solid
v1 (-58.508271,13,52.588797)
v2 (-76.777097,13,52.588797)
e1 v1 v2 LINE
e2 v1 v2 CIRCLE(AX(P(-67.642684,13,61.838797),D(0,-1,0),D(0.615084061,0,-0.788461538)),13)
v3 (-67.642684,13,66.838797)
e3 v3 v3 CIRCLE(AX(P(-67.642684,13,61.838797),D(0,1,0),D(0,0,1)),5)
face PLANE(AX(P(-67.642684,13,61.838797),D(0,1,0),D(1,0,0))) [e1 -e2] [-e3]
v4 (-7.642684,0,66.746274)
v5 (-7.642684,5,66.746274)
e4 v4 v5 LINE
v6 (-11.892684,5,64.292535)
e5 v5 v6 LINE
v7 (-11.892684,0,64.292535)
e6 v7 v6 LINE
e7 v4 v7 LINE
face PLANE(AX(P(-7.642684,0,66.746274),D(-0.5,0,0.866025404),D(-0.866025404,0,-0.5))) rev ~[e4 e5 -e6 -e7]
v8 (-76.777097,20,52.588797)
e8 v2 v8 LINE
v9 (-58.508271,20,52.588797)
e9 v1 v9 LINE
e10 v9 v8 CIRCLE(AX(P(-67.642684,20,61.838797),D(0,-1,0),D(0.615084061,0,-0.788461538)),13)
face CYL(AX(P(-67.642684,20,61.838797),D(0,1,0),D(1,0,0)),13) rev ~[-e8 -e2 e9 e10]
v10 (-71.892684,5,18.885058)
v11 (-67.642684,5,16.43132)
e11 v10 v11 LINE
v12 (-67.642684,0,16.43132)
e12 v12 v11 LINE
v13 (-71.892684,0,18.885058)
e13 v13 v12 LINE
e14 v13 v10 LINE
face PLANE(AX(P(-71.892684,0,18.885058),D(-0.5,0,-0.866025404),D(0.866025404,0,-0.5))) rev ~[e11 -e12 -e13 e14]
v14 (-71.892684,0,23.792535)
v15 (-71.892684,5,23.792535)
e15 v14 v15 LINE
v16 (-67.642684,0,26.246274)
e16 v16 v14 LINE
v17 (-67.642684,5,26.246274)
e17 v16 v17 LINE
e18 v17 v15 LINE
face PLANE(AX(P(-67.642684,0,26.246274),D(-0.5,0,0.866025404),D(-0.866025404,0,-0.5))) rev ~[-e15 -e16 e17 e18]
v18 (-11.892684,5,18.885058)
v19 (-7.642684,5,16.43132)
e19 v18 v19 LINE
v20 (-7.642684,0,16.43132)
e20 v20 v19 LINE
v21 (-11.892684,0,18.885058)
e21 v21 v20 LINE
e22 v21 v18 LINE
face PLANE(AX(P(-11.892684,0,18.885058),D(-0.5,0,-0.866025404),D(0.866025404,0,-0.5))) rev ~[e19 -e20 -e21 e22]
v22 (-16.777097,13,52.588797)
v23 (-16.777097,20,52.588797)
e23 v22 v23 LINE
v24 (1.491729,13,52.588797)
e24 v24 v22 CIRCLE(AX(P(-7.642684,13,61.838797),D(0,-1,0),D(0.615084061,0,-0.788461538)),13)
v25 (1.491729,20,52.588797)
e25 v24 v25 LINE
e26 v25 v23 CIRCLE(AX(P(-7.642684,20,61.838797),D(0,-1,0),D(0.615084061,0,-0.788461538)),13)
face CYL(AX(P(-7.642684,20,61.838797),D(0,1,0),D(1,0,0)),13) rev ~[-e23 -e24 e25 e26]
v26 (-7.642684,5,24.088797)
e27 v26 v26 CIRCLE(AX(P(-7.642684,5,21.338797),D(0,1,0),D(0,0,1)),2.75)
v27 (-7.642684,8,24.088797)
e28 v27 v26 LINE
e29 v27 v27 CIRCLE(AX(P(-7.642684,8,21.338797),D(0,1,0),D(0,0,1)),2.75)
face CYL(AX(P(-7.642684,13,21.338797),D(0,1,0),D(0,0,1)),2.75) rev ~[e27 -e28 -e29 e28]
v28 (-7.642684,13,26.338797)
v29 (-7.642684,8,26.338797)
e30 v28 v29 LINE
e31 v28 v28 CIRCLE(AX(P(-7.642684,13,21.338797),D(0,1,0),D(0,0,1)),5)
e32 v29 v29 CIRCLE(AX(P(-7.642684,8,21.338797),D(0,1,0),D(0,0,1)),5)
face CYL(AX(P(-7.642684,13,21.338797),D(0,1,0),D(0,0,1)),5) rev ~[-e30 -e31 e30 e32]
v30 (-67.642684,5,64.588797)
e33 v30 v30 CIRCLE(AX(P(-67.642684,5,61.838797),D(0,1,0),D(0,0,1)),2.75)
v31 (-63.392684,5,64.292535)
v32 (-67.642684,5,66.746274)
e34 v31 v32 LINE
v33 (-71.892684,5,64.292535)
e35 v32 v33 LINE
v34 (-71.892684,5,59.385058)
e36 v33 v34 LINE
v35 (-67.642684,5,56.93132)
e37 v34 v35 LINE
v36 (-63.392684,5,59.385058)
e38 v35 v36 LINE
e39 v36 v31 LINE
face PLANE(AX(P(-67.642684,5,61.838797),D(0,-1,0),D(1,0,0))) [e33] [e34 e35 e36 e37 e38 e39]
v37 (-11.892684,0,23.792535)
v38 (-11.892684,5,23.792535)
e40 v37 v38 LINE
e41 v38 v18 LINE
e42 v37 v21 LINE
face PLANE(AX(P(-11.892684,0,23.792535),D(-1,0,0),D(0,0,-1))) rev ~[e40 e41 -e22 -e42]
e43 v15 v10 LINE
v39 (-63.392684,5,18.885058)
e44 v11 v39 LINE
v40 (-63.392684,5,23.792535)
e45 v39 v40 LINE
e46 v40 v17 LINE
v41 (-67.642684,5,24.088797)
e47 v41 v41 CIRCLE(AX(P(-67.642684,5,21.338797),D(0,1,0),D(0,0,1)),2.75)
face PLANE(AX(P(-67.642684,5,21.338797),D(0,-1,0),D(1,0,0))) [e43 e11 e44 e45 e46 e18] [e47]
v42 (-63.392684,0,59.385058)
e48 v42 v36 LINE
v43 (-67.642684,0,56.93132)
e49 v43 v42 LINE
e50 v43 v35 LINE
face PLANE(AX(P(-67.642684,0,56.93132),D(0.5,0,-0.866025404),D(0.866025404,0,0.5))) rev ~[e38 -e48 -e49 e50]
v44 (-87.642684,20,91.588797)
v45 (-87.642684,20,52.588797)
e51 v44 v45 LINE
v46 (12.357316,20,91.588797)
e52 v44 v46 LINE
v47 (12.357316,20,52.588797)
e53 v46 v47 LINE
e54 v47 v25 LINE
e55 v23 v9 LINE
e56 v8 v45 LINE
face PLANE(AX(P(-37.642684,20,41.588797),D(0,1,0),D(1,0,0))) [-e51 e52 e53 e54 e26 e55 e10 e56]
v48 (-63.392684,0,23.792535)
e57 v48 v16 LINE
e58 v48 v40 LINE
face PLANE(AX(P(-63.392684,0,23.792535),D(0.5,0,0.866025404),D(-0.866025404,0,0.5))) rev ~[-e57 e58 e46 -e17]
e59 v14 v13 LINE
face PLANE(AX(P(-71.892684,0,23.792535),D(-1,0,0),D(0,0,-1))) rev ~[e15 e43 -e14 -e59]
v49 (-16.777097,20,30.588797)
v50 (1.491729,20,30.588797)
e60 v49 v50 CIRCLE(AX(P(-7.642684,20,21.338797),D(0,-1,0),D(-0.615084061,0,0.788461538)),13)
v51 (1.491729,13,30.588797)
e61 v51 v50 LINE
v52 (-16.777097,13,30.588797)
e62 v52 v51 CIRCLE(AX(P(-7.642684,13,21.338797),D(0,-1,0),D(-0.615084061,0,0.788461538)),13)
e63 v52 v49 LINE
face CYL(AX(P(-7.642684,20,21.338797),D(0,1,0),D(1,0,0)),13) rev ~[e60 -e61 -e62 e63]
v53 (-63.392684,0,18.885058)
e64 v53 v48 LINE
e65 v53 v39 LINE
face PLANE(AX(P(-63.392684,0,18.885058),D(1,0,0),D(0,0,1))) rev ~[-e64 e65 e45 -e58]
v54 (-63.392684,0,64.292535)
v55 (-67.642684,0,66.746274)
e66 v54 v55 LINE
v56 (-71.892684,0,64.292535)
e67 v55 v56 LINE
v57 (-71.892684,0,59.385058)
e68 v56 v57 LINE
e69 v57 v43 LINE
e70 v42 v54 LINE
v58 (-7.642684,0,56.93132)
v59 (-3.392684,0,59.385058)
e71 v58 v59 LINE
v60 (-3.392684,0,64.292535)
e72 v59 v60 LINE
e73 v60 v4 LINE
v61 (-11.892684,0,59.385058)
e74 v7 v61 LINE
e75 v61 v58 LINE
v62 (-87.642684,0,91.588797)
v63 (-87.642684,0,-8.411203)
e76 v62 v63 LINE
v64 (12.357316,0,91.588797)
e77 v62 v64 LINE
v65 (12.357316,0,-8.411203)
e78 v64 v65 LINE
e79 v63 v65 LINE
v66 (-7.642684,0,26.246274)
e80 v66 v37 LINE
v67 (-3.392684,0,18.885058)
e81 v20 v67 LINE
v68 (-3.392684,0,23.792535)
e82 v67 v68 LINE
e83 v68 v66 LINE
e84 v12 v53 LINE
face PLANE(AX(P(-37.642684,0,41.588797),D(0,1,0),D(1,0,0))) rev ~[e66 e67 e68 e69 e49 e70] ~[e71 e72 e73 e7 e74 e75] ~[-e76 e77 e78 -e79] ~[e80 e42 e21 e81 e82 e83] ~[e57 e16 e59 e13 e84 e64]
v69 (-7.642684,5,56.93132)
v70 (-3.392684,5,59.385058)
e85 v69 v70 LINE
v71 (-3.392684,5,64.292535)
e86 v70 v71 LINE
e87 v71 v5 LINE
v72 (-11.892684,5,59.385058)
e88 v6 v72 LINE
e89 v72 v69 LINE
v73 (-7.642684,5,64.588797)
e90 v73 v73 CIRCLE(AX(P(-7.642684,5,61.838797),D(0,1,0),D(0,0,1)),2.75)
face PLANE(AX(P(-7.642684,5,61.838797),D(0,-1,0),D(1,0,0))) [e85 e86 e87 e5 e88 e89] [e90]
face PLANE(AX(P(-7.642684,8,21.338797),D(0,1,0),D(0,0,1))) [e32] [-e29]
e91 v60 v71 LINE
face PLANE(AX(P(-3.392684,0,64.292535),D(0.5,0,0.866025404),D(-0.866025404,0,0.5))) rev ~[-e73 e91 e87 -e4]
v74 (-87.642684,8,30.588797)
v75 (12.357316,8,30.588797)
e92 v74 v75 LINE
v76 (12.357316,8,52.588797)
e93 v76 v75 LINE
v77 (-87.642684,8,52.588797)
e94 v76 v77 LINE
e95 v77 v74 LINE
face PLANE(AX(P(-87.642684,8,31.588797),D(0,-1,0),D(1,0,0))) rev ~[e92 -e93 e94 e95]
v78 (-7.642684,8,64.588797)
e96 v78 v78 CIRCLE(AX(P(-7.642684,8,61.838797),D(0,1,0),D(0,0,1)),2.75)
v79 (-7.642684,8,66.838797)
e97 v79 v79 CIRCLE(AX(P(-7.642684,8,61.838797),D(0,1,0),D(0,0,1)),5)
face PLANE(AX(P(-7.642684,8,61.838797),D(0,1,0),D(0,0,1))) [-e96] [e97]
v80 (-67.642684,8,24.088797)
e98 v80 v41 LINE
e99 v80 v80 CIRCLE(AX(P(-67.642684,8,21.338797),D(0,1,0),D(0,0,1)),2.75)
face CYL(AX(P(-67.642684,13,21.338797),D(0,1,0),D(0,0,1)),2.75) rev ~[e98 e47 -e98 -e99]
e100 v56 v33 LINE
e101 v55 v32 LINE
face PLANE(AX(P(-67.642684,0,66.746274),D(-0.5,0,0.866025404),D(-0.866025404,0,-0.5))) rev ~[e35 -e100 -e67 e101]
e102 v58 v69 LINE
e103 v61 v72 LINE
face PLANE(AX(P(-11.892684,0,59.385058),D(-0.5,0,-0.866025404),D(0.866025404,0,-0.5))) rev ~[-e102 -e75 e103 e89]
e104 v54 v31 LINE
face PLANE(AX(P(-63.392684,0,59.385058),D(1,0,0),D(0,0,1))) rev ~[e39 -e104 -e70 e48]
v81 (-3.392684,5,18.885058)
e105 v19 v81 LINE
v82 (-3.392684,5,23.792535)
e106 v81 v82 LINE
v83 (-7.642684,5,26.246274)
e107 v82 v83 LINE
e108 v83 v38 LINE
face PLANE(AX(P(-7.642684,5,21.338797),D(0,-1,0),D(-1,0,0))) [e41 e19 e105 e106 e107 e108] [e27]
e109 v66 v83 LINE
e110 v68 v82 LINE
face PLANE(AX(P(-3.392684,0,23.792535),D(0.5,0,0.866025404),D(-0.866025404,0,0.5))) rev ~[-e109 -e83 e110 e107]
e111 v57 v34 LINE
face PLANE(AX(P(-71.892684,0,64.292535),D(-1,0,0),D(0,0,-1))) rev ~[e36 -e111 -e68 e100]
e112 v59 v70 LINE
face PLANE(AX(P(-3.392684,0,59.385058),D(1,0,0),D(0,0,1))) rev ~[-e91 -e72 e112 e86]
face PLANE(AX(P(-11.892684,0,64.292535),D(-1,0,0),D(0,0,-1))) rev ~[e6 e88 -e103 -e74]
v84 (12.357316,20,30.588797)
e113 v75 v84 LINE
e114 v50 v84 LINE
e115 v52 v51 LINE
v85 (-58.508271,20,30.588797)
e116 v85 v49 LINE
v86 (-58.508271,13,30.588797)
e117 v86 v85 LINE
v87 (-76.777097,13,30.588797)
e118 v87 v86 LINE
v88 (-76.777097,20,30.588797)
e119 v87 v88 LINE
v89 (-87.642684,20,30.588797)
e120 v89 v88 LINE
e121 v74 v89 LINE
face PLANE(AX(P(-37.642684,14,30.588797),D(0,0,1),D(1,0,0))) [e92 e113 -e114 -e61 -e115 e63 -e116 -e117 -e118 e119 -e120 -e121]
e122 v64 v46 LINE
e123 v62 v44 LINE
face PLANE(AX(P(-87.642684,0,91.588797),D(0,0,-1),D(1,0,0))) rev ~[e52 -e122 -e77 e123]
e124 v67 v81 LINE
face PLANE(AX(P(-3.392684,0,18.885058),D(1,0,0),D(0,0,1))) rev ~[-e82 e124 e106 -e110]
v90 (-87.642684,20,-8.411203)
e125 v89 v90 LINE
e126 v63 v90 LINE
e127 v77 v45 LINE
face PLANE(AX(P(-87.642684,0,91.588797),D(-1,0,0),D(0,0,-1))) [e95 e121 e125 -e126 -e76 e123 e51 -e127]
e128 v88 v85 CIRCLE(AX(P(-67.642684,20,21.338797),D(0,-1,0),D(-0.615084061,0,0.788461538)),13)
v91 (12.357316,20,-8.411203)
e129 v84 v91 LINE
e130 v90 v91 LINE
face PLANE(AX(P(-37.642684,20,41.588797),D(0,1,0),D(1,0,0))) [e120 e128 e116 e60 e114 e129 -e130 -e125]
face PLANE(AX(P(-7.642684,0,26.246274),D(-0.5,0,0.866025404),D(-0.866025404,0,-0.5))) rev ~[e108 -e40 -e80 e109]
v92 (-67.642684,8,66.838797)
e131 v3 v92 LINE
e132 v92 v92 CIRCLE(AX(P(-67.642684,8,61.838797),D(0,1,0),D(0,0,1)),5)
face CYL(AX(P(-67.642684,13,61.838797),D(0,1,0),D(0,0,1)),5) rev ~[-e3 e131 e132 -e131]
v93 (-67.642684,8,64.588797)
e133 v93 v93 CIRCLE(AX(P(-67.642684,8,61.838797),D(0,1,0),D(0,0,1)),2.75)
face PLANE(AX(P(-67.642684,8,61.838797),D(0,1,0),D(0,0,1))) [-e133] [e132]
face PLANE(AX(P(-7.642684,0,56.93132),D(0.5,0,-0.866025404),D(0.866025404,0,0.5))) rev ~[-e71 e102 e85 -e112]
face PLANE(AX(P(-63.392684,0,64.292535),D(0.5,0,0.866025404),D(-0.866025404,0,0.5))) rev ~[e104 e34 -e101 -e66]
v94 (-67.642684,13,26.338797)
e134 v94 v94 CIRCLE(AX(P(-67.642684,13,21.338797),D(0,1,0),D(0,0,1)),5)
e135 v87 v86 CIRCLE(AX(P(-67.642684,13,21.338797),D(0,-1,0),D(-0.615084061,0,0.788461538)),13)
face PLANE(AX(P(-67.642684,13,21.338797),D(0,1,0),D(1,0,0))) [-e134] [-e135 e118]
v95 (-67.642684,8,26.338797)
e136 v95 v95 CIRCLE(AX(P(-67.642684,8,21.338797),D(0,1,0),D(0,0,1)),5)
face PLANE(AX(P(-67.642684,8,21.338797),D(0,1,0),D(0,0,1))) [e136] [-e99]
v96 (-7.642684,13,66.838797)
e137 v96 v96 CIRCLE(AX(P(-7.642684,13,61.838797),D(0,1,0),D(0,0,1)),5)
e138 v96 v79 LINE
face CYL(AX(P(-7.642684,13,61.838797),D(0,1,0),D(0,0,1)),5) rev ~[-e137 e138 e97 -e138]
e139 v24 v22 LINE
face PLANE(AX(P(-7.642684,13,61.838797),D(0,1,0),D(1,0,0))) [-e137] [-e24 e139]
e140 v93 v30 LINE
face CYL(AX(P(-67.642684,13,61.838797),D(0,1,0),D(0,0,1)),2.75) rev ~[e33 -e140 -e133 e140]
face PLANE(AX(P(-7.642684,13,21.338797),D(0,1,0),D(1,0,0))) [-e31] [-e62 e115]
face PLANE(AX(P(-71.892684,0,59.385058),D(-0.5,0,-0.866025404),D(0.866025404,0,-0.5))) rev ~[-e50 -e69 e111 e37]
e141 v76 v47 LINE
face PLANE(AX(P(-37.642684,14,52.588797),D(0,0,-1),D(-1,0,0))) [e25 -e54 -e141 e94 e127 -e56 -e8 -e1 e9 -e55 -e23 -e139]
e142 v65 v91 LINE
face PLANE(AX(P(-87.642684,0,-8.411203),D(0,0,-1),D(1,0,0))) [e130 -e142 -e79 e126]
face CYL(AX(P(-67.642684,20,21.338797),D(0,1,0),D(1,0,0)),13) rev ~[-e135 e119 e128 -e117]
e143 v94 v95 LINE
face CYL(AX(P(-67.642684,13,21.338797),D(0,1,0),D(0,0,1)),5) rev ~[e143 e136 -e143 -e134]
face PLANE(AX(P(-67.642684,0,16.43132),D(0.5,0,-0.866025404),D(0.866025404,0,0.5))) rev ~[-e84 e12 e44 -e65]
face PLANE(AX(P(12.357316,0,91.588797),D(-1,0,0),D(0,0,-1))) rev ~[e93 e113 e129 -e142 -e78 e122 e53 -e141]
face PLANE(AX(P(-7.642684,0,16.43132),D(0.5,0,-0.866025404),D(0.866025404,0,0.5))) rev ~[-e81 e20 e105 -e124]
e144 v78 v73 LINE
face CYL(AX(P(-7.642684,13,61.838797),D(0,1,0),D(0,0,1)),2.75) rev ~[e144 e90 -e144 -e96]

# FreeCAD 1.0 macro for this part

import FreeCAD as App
import Part
import Sketcher

V = App.Vector
Q = App.Units.Quantity

doc = App.newDocument("Part")
body = doc.addObject("PartDesign::Body", "Body")

# Sketch on XZ plane
sketch1 = body.newObject("Sketcher::SketchObject", "Sketch")
sketch1.AttachmentSupport = (doc.getObject("XZ_Plane"), [""])
sketch1.MapMode = "FlatFace"
sketch1.addGeometry([
    Part.LineSegment(V(-87.642684, -8.411203, 0), V(-87.642684, 91.588797, 0)),
    Part.LineSegment(V(-87.642684, 91.588797, 0), V(12.357316, 91.588797, 0)),
    Part.LineSegment(V(12.357316, 91.588797, 0), V(12.357316, -8.411203, 0)),
    Part.LineSegment(V(12.357316, -8.411203, 0), V(-87.642684, -8.411203, 0)),
], False)
sketch1.addConstraint([
    Sketcher.Constraint("Coincident", 0, 2, 1, 1),
    Sketcher.Constraint("Coincident", 1, 2, 2, 1),
    Sketcher.Constraint("Coincident", 2, 2, 3, 1),
    Sketcher.Constraint("Coincident", 3, 2, 0, 1),
    Sketcher.Constraint("Vertical", 0),
    Sketcher.Constraint("Horizontal", 1),
    Sketcher.Constraint("Vertical", 2),
    Sketcher.Constraint("Horizontal", 3),
    Sketcher.Constraint("Equal", 3, 0),
    Sketcher.Constraint("DistanceX", 1, 1, 1, 2, Q("100 mm")),
    Sketcher.Constraint("DistanceX", 0, 2, -1, 1, Q("87.642684 mm")),
    Sketcher.Constraint("DistanceY", -1, 1, 0, 2, Q("91.588797 mm")),
])
pad1 = body.newObject("PartDesign::Pad", "Pad")
pad1.Profile = sketch1
pad1.Length = 20
pad1.Reversed = True

# Sketch on XZ plane
sketch2 = body.newObject("Sketcher::SketchObject", "Sketch001")
sketch2.AttachmentSupport = (doc.getObject("XZ_Plane"), [""])
sketch2.MapMode = "FlatFace"
sketch2.AttachmentOffset = App.Placement(V(0, 0, -20), App.Rotation())
sketch2.addGeometry([
    Part.LineSegment(V(-87.642684, 31.588797, 0), V(-87.642684, 51.588797, 0)),
    Part.LineSegment(V(-87.642684, 51.588797, 0), V(12.357316, 51.588797, 0)),
    Part.LineSegment(V(12.357316, 51.588797, 0), V(12.357316, 31.588797, 0)),
    Part.LineSegment(V(12.357316, 31.588797, 0), V(-87.642684, 31.588797, 0)),
], False)
sketch2.addConstraint([
    Sketcher.Constraint("Coincident", 0, 2, 1, 1),
    Sketcher.Constraint("Coincident", 1, 2, 2, 1),
    Sketcher.Constraint("Coincident", 2, 2, 3, 1),
    Sketcher.Constraint("Coincident", 3, 2, 0, 1),
    Sketcher.Constraint("Vertical", 0),
    Sketcher.Constraint("Horizontal", 1),
    Sketcher.Constraint("Vertical", 2),
    Sketcher.Constraint("Horizontal", 3),
    Sketcher.Constraint("DistanceX", 1, 1, 1, 2, Q("100 mm")),
    Sketcher.Constraint("DistanceY", 0, 1, 0, 2, Q("20 mm")),
    Sketcher.Constraint("DistanceX", 0, 2, -1, 1, Q("87.642684 mm")),
    Sketcher.Constraint("DistanceY", -1, 1, 0, 2, Q("51.588797 mm")),
])
pocket1 = body.newObject("PartDesign::Pocket", "Pocket")
pocket1.Profile = sketch2
pocket1.Length = 12
pocket1.Reversed = True

# Sketch on XZ plane
sketch3 = body.newObject("Sketcher::SketchObject", "Sketch002")
sketch3.AttachmentSupport = (doc.getObject("XZ_Plane"), [""])
sketch3.MapMode = "FlatFace"
sketch3.AttachmentOffset = App.Placement(V(0, 0, -20), App.Rotation())
sketch3.addGeometry(Part.Circle(V(-7.642684, 61.838797, 0), V(0, 0, 1), 13), False)
sketch3.addConstraint([
    Sketcher.Constraint("Diameter", 0, Q("26 mm")),
    Sketcher.Constraint("DistanceX", 0, 3, -1, 1, Q("7.642684 mm")),
    Sketcher.Constraint("DistanceY", -1, 1, 0, 3, Q("61.838797 mm")),
])
pocket2 = body.newObject("PartDesign::Pocket", "Pocket001")
pocket2.Profile = sketch3
pocket2.Length = 7
pocket2.Reversed = True

# Sketch on XZ plane
sketch4 = body.newObject("Sketcher::SketchObject", "Sketch003")
sketch4.AttachmentSupport = (doc.getObject("XZ_Plane"), [""])
sketch4.MapMode = "FlatFace"
sketch4.AttachmentOffset = App.Placement(V(0, 0, -20), App.Rotation())
sketch4.addGeometry(Part.Circle(V(-67.642684, 61.838797, 0), V(0, 0, 1), 13), False)
sketch4.addConstraint([
    Sketcher.Constraint("Diameter", 0, Q("26 mm")),
    Sketcher.Constraint("DistanceX", 0, 3, -1, 1, Q("67.642684 mm")),
    Sketcher.Constraint("DistanceY", -1, 1, 0, 3, Q("61.838797 mm")),
])
pocket3 = body.newObject("PartDesign::Pocket", "Pocket002")
pocket3.Profile = sketch4
pocket3.Length = 7
pocket3.Reversed = True

# Sketch on XZ plane
sketch5 = body.newObject("Sketcher::SketchObject", "Sketch004")
sketch5.AttachmentSupport = (doc.getObject("XZ_Plane"), [""])
sketch5.MapMode = "FlatFace"
sketch5.AttachmentOffset = App.Placement(V(0, 0, -20), App.Rotation())
sketch5.addGeometry(Part.Circle(V(-7.642684, 21.338797, 0), V(0, 0, 1), 13), False)
sketch5.addConstraint([
    Sketcher.Constraint("Diameter", 0, Q("26 mm")),
    Sketcher.Constraint("DistanceX", 0, 3, -1, 1, Q("7.642684 mm")),
    Sketcher.Constraint("DistanceY", -1, 1, 0, 3, Q("21.338797 mm")),
])
pocket4 = body.newObject("PartDesign::Pocket", "Pocket003")
pocket4.Profile = sketch5
pocket4.Length = 7
pocket4.Reversed = True

# Sketch on XZ plane
sketch6 = body.newObject("Sketcher::SketchObject", "Sketch005")
sketch6.AttachmentSupport = (doc.getObject("XZ_Plane"), [""])
sketch6.MapMode = "FlatFace"
sketch6.AttachmentOffset = App.Placement(V(0, 0, -20), App.Rotation())
sketch6.addGeometry(Part.Circle(V(-67.642684, 21.338797, 0), V(0, 0, 1), 13), False)
sketch6.addConstraint([
    Sketcher.Constraint("Diameter", 0, Q("26 mm")),
    Sketcher.Constraint("DistanceX", 0, 3, -1, 1, Q("67.642684 mm")),
    Sketcher.Constraint("DistanceY", -1, 1, 0, 3, Q("21.338797 mm")),
])
pocket5 = body.newObject("PartDesign::Pocket", "Pocket004")
pocket5.Profile = sketch6
pocket5.Length = 7
pocket5.Reversed = True

# Sketch on XZ plane
sketch7 = body.newObject("Sketcher::SketchObject", "Sketch006")
sketch7.AttachmentSupport = (doc.getObject("XZ_Plane"), [""])
sketch7.MapMode = "FlatFace"
sketch7.AttachmentOffset = App.Placement(V(0, 0, -13), App.Rotation())
sketch7.addGeometry(Part.Circle(V(-67.642684, 21.338797, 0), V(0, 0, 1), 2.75), False)
sketch7.addConstraint([
    Sketcher.Constraint("Diameter", 0, Q("5.5 mm")),
    Sketcher.Constraint("DistanceX", 0, 3, -1, 1, Q("67.642684 mm")),
    Sketcher.Constraint("DistanceY", -1, 1, 0, 3, Q("21.338797 mm")),
])
pocket6 = body.newObject("PartDesign::Pocket", "Pocket005")
pocket6.Profile = sketch7
pocket6.Type = "ThroughAll"
pocket6.Reversed = True

# Sketch on XZ plane
sketch8 = body.newObject("Sketcher::SketchObject", "Sketch007")
sketch8.AttachmentSupport = (doc.getObject("XZ_Plane"), [""])
sketch8.MapMode = "FlatFace"
sketch8.AttachmentOffset = App.Placement(V(0, 0, -13), App.Rotation())
sketch8.addGeometry(Part.Circle(V(-7.642684, 21.338797, 0), V(0, 0, 1), 2.75), False)
sketch8.addConstraint([
    Sketcher.Constraint("Diameter", 0, Q("5.5 mm")),
    Sketcher.Constraint("DistanceX", 0, 3, -1, 1, Q("7.642684 mm")),
    Sketcher.Constraint("DistanceY", -1, 1, 0, 3, Q("21.338797 mm")),
])
pocket7 = body.newObject("PartDesign::Pocket", "Pocket006")
pocket7.Profile = sketch8
pocket7.Type = "ThroughAll"
pocket7.Reversed = True

# Sketch on XZ plane
sketch9 = body.newObject("Sketcher::SketchObject", "Sketch008")
sketch9.AttachmentSupport = (doc.getObject("XZ_Plane"), [""])
sketch9.MapMode = "FlatFace"
sketch9.AttachmentOffset = App.Placement(V(0, 0, -13), App.Rotation())
sketch9.addGeometry(Part.Circle(V(-7.642684, 61.838797, 0), V(0, 0, 1), 2.75), False)
sketch9.addConstraint([
    Sketcher.Constraint("Diameter", 0, Q("5.5 mm")),
    Sketcher.Constraint("DistanceX", 0, 3, -1, 1, Q("7.642684 mm")),
    Sketcher.Constraint("DistanceY", -1, 1, 0, 3, Q("61.838797 mm")),
])
pocket8 = body.newObject("PartDesign::Pocket", "Pocket007")
pocket8.Profile = sketch9
pocket8.Type = "ThroughAll"
pocket8.Reversed = True

# Sketch on XZ plane
sketch10 = body.newObject("Sketcher::SketchObject", "Sketch009")
sketch10.AttachmentSupport = (doc.getObject("XZ_Plane"), [""])
sketch10.MapMode = "FlatFace"
sketch10.AttachmentOffset = App.Placement(V(0, 0, -13), App.Rotation())
sketch10.addGeometry(Part.Circle(V(-67.642684, 61.838797, 0), V(0, 0, 1), 2.75), False)
sketch10.addConstraint([
    Sketcher.Constraint("Diameter", 0, Q("5.5 mm")),
    Sketcher.Constraint("DistanceX", 0, 3, -1, 1, Q("67.642684 mm")),
    Sketcher.Constraint("DistanceY", -1, 1, 0, 3, Q("61.838797 mm")),
])
pocket9 = body.newObject("PartDesign::Pocket", "Pocket008")
pocket9.Profile = sketch10
pocket9.Type = "ThroughAll"
pocket9.Reversed = True

# Sketch on XZ plane
sketch11 = body.newObject("Sketcher::SketchObject", "Sketch010")
sketch11.AttachmentSupport = (doc.getObject("XZ_Plane"), [""])
sketch11.MapMode = "FlatFace"
sketch11.addGeometry([
    Part.LineSegment(V(-7.642684, 26.246274, 0), V(-11.892684, 23.792535, 0)),  # 0
    Part.LineSegment(V(-11.892684, 23.792535, 0), V(-11.892684, 18.885058, 0)),  # 1
    Part.LineSegment(V(-11.892684, 18.885058, 0), V(-7.642684, 16.43132, 0)),  # 2
    Part.LineSegment(V(-7.642684, 16.43132, 0), V(-3.392684, 18.885058, 0)),  # 3
    Part.LineSegment(V(-3.392684, 18.885058, 0), V(-3.392684, 23.792535, 0)),  # 4
    Part.LineSegment(V(-3.392684, 23.792535, 0), V(-7.642684, 26.246274, 0)),  # 5
], False)
sketch11.addConstraint([
    Sketcher.Constraint("Coincident", 0, 2, 1, 1),
    Sketcher.Constraint("Coincident", 1, 2, 2, 1),
    Sketcher.Constraint("Coincident", 2, 2, 3, 1),
    Sketcher.Constraint("Coincident", 3, 2, 4, 1),
    Sketcher.Constraint("Coincident", 4, 2, 5, 1),
    Sketcher.Constraint("Coincident", 5, 2, 0, 1),
    Sketcher.Constraint("Vertical", 1),
    Sketcher.Constraint("Vertical", 4),
    Sketcher.Constraint("Parallel", 0, 3),
    Sketcher.Constraint("Parallel", 2, 5),
    Sketcher.Constraint("Horizontal", 1, 2, 3, 2),
    Sketcher.Constraint("Horizontal", 0, 2, 4, 2),
    Sketcher.Constraint("Vertical", 2, 2, 5, 2),
    Sketcher.Constraint("Angle", 0, Q("-150 deg")),
    Sketcher.Constraint("DistanceX", 1, 2, 3, 2, Q("8.5 mm")),
    Sketcher.Constraint("DistanceY", 1, 2, 1, 1, Q("4.907477 mm")),
    Sketcher.Constraint("DistanceY", -1, 1, 1, 2, Q("18.885058 mm")),
    Sketcher.Constraint("DistanceX", 0, 2, -1, 1, Q("11.892684 mm")),
])
pocket10 = body.newObject("PartDesign::Pocket", "Pocket009")
pocket10.Profile = sketch11
pocket10.Length = 5

# Sketch on XZ plane
sketch12 = body.newObject("Sketcher::SketchObject", "Sketch011")
sketch12.AttachmentSupport = (doc.getObject("XZ_Plane"), [""])
sketch12.MapMode = "FlatFace"
sketch12.addGeometry([
    Part.LineSegment(V(-67.642684, 26.246274, 0), V(-71.892684, 23.792535, 0)),  # 0
    Part.LineSegment(V(-71.892684, 23.792535, 0), V(-71.892684, 18.885058, 0)),  # 1
    Part.LineSegment(V(-71.892684, 18.885058, 0), V(-67.642684, 16.43132, 0)),  # 2
    Part.LineSegment(V(-67.642684, 16.43132, 0), V(-63.392684, 18.885058, 0)),  # 3
    Part.LineSegment(V(-63.392684, 18.885058, 0), V(-63.392684, 23.792535, 0)),  # 4
    Part.LineSegment(V(-63.392684, 23.792535, 0), V(-67.642684, 26.246274, 0)),  # 5
], False)
sketch12.addConstraint([
    Sketcher.Constraint("Coincident", 0, 2, 1, 1),
    Sketcher.Constraint("Coincident", 1, 2, 2, 1),
    Sketcher.Constraint("Coincident", 2, 2, 3, 1),
    Sketcher.Constraint("Coincident", 3, 2, 4, 1),
    Sketcher.Constraint("Coincident", 4, 2, 5, 1),
    Sketcher.Constraint("Coincident", 5, 2, 0, 1),
    Sketcher.Constraint("Vertical", 1),
    Sketcher.Constraint("Vertical", 4),
    Sketcher.Constraint("Parallel", 0, 3),
    Sketcher.Constraint("Parallel", 2, 5),
    Sketcher.Constraint("Horizontal", 1, 2, 3, 2),
    Sketcher.Constraint("Horizontal", 0, 2, 4, 2),
    Sketcher.Constraint("Vertical", 2, 2, 5, 2),
    Sketcher.Constraint("Angle", 0, Q("-150 deg")),
    Sketcher.Constraint("DistanceX", 1, 2, 3, 2, Q("8.5 mm")),
    Sketcher.Constraint("DistanceY", 1, 2, 1, 1, Q("4.907477 mm")),
    Sketcher.Constraint("DistanceY", -1, 1, 1, 2, Q("18.885058 mm")),
    Sketcher.Constraint("DistanceX", 0, 2, -1, 1, Q("71.892684 mm")),
])
pocket11 = body.newObject("PartDesign::Pocket", "Pocket010")
pocket11.Profile = sketch12
pocket11.Length = 5

# Sketch on XZ plane
sketch13 = body.newObject("Sketcher::SketchObject", "Sketch012")
sketch13.AttachmentSupport = (doc.getObject("XZ_Plane"), [""])
sketch13.MapMode = "FlatFace"
sketch13.addGeometry([
    Part.LineSegment(V(-67.642684, 66.746274, 0), V(-71.892684, 64.292535, 0)),  # 0
    Part.LineSegment(V(-71.892684, 64.292535, 0), V(-71.892684, 59.385058, 0)),  # 1
    Part.LineSegment(V(-71.892684, 59.385058, 0), V(-67.642684, 56.93132, 0)),  # 2
    Part.LineSegment(V(-67.642684, 56.93132, 0), V(-63.392684, 59.385058, 0)),  # 3
    Part.LineSegment(V(-63.392684, 59.385058, 0), V(-63.392684, 64.292535, 0)),  # 4
    Part.LineSegment(V(-63.392684, 64.292535, 0), V(-67.642684, 66.746274, 0)),  # 5
], False)
sketch13.addConstraint([
    Sketcher.Constraint("Coincident", 0, 2, 1, 1),
    Sketcher.Constraint("Coincident", 1, 2, 2, 1),
    Sketcher.Constraint("Coincident", 2, 2, 3, 1),
    Sketcher.Constraint("Coincident", 3, 2, 4, 1),
    Sketcher.Constraint("Coincident", 4, 2, 5, 1),
    Sketcher.Constraint("Coincident", 5, 2, 0, 1),
    Sketcher.Constraint("Vertical", 1),
    Sketcher.Constraint("Vertical", 4),
    Sketcher.Constraint("Parallel", 0, 3),
    Sketcher.Constraint("Parallel", 2, 5),
    Sketcher.Constraint("Horizontal", 1, 2, 3, 2),
    Sketcher.Constraint("Horizontal", 0, 2, 4, 2),
    Sketcher.Constraint("Vertical", 2, 2, 5, 2),
    Sketcher.Constraint("Angle", 0, Q("-150 deg")),
    Sketcher.Constraint("DistanceX", 1, 2, 3, 2, Q("8.5 mm")),
    Sketcher.Constraint("DistanceY", 1, 2, 1, 1, Q("4.907477 mm")),
    Sketcher.Constraint("DistanceY", -1, 1, 1, 2, Q("59.385058 mm")),
    Sketcher.Constraint("DistanceX", 0, 2, -1, 1, Q("71.892684 mm")),
])
pocket12 = body.newObject("PartDesign::Pocket", "Pocket011")
pocket12.Profile = sketch13
pocket12.Length = 5

# Sketch on XZ plane
sketch14 = body.newObject("Sketcher::SketchObject", "Sketch013")
sketch14.AttachmentSupport = (doc.getObject("XZ_Plane"), [""])
sketch14.MapMode = "FlatFace"
sketch14.addGeometry([
    Part.LineSegment(V(-7.642684, 66.746274, 0), V(-11.892684, 64.292535, 0)),  # 0
    Part.LineSegment(V(-11.892684, 64.292535, 0), V(-11.892684, 59.385058, 0)),  # 1
    Part.LineSegment(V(-11.892684, 59.385058, 0), V(-7.642684, 56.93132, 0)),  # 2
    Part.LineSegment(V(-7.642684, 56.93132, 0), V(-3.392684, 59.385058, 0)),  # 3
    Part.LineSegment(V(-3.392684, 59.385058, 0), V(-3.392684, 64.292535, 0)),  # 4
    Part.LineSegment(V(-3.392684, 64.292535, 0), V(-7.642684, 66.746274, 0)),  # 5
], False)
sketch14.addConstraint([
    Sketcher.Constraint("Coincident", 0, 2, 1, 1),
    Sketcher.Constraint("Coincident", 1, 2, 2, 1),
    Sketcher.Constraint("Coincident", 2, 2, 3, 1),
    Sketcher.Constraint("Coincident", 3, 2, 4, 1),
    Sketcher.Constraint("Coincident", 4, 2, 5, 1),
    Sketcher.Constraint("Coincident", 5, 2, 0, 1),
    Sketcher.Constraint("Vertical", 1),
    Sketcher.Constraint("Vertical", 4),
    Sketcher.Constraint("Parallel", 0, 3),
    Sketcher.Constraint("Parallel", 2, 5),
    Sketcher.Constraint("Horizontal", 1, 2, 3, 2),
    Sketcher.Constraint("Horizontal", 0, 2, 4, 2),
    Sketcher.Constraint("Vertical", 2, 2, 5, 2),
    Sketcher.Constraint("Angle", 0, Q("-150 deg")),
    Sketcher.Constraint("DistanceX", 1, 2, 3, 2, Q("8.5 mm")),
    Sketcher.Constraint("DistanceY", 1, 2, 1, 1, Q("4.907477 mm")),
    Sketcher.Constraint("DistanceY", -1, 1, 1, 2, Q("59.385058 mm")),
    Sketcher.Constraint("DistanceX", 0, 2, -1, 1, Q("11.892684 mm")),
])
pocket13 = body.newObject("PartDesign::Pocket", "Pocket012")
pocket13.Profile = sketch14
pocket13.Length = 5

# Sketch on XY plane
sketch15 = body.newObject("Sketcher::SketchObject", "Sketch014")
sketch15.AttachmentSupport = (doc.getObject("XY_Plane"), [""])
sketch15.MapMode = "FlatFace"
sketch15.AttachmentOffset = App.Placement(V(0, 0, 31.588797), App.Rotation())
sketch15.addGeometry([
    Part.LineSegment(V(-87.642684, 20, 0), V(-87.642684, 8, 0)),
    Part.LineSegment(V(-87.642684, 8, 0), V(12.357316, 8, 0)),
    Part.LineSegment(V(12.357316, 8, 0), V(12.357316, 20, 0)),
    Part.LineSegment(V(12.357316, 20, 0), V(-87.642684, 20, 0)),
], False)
sketch15.addConstraint([
    Sketcher.Constraint("Coincident", 0, 2, 1, 1),
    Sketcher.Constraint("Coincident", 1, 2, 2, 1),
    Sketcher.Constraint("Coincident", 2, 2, 3, 1),
    Sketcher.Constraint("Coincident", 3, 2, 0, 1),
    Sketcher.Constraint("Vertical", 0),
    Sketcher.Constraint("Horizontal", 1),
    Sketcher.Constraint("Vertical", 2),
    Sketcher.Constraint("Horizontal", 3),
    Sketcher.Constraint("DistanceX", 1, 1, 1, 2, Q("100 mm")),
    Sketcher.Constraint("DistanceY", 0, 2, 0, 1, Q("12 mm")),
    Sketcher.Constraint("DistanceY", -1, 1, 0, 2, Q("8 mm")),
    Sketcher.Constraint("DistanceX", 0, 2, -1, 1, Q("87.642684 mm")),
])
pocket14 = body.newObject("PartDesign::Pocket", "Pocket013")
pocket14.Profile = sketch15
pocket14.Length = 1

# Sketch on XY plane
sketch16 = body.newObject("Sketcher::SketchObject", "Sketch015")
sketch16.AttachmentSupport = (doc.getObject("XY_Plane"), [""])
sketch16.MapMode = "FlatFace"
sketch16.AttachmentOffset = App.Placement(V(0, 0, 51.588797), App.Rotation())
sketch16.addGeometry([
    Part.LineSegment(V(12.357316, 20, 0), V(12.357316, 8, 0)),
    Part.LineSegment(V(12.357316, 8, 0), V(-87.642684, 8, 0)),
    Part.LineSegment(V(-87.642684, 8, 0), V(-87.642684, 20, 0)),
    Part.LineSegment(V(-87.642684, 20, 0), V(12.357316, 20, 0)),
], False)
sketch16.addConstraint([
    Sketcher.Constraint("Coincident", 0, 2, 1, 1),
    Sketcher.Constraint("Coincident", 1, 2, 2, 1),
    Sketcher.Constraint("Coincident", 2, 2, 3, 1),
    Sketcher.Constraint("Coincident", 3, 2, 0, 1),
    Sketcher.Constraint("Vertical", 0),
    Sketcher.Constraint("Horizontal", 1),
    Sketcher.Constraint("Vertical", 2),
    Sketcher.Constraint("Horizontal", 3),
    Sketcher.Constraint("DistanceX", 1, 2, 1, 1, Q("100 mm")),
    Sketcher.Constraint("DistanceY", 0, 2, 0, 1, Q("12 mm")),
    Sketcher.Constraint("DistanceY", -1, 1, 0, 2, Q("8 mm")),
    Sketcher.Constraint("DistanceX", -1, 1, 0, 2, Q("12.357316 mm")),
])
pocket15 = body.newObject("PartDesign::Pocket", "Pocket014")
pocket15.Profile = sketch16
pocket15.Length = 1
pocket15.Reversed = True

# Sketch on XZ plane
sketch17 = body.newObject("Sketcher::SketchObject", "Sketch016")
sketch17.AttachmentSupport = (doc.getObject("XZ_Plane"), [""])
sketch17.MapMode = "FlatFace"
sketch17.AttachmentOffset = App.Placement(V(0, 0, -13), App.Rotation())
sketch17.addGeometry(Part.Circle(V(-67.642684, 61.838797, 0), V(0, 0, 1), 5), False)
sketch17.addConstraint([
    Sketcher.Constraint("Diameter", 0, Q("10 mm")),
    Sketcher.Constraint("DistanceX", 0, 3, -1, 1, Q("67.642684 mm")),
    Sketcher.Constraint("DistanceY", -1, 1, 0, 3, Q("61.838797 mm")),
])
pocket16 = body.newObject("PartDesign::Pocket", "Pocket015")
pocket16.Profile = sketch17
pocket16.Length = 5
pocket16.Reversed = True

# Sketch on XZ plane
sketch18 = body.newObject("Sketcher::SketchObject", "Sketch017")
sketch18.AttachmentSupport = (doc.getObject("XZ_Plane"), [""])
sketch18.MapMode = "FlatFace"
sketch18.AttachmentOffset = App.Placement(V(0, 0, -13), App.Rotation())
sketch18.addGeometry(Part.Circle(V(-7.642684, 61.838797, 0), V(0, 0, 1), 5), False)
sketch18.addConstraint([
    Sketcher.Constraint("Diameter", 0, Q("10 mm")),
    Sketcher.Constraint("DistanceX", 0, 3, -1, 1, Q("7.642684 mm")),
    Sketcher.Constraint("DistanceY", -1, 1, 0, 3, Q("61.838797 mm")),
])
pocket17 = body.newObject("PartDesign::Pocket", "Pocket016")
pocket17.Profile = sketch18
pocket17.Length = 5
pocket17.Reversed = True

# Sketch on XZ plane
sketch19 = body.newObject("Sketcher::SketchObject", "Sketch018")
sketch19.AttachmentSupport = (doc.getObject("XZ_Plane"), [""])
sketch19.MapMode = "FlatFace"
sketch19.AttachmentOffset = App.Placement(V(0, 0, -13), App.Rotation())
sketch19.addGeometry(Part.Circle(V(-7.642684, 21.338797, 0), V(0, 0, 1), 5), False)
sketch19.addConstraint([
    Sketcher.Constraint("Diameter", 0, Q("10 mm")),
    Sketcher.Constraint("DistanceX", 0, 3, -1, 1, Q("7.642684 mm")),
    Sketcher.Constraint("DistanceY", -1, 1, 0, 3, Q("21.338797 mm")),
])
pocket18 = body.newObject("PartDesign::Pocket", "Pocket017")
pocket18.Profile = sketch19
pocket18.Length = 5
pocket18.Reversed = True

# Sketch on XZ plane
sketch20 = body.newObject("Sketcher::SketchObject", "Sketch019")
sketch20.AttachmentSupport = (doc.getObject("XZ_Plane"), [""])
sketch20.MapMode = "FlatFace"
sketch20.AttachmentOffset = App.Placement(V(0, 0, -13), App.Rotation())
sketch20.addGeometry(Part.Circle(V(-67.642684, 21.338797, 0), V(0, 0, 1), 5), False)
sketch20.addConstraint([
    Sketcher.Constraint("Diameter", 0, Q("10 mm")),
    Sketcher.Constraint("DistanceX", 0, 3, -1, 1, Q("67.642684 mm")),
    Sketcher.Constraint("DistanceY", -1, 1, 0, 3, Q("21.338797 mm")),
])
pocket19 = body.newObject("PartDesign::Pocket", "Pocket018")
pocket19.Profile = sketch20
pocket19.Length = 5
pocket19.Reversed = True

doc.recompute()
